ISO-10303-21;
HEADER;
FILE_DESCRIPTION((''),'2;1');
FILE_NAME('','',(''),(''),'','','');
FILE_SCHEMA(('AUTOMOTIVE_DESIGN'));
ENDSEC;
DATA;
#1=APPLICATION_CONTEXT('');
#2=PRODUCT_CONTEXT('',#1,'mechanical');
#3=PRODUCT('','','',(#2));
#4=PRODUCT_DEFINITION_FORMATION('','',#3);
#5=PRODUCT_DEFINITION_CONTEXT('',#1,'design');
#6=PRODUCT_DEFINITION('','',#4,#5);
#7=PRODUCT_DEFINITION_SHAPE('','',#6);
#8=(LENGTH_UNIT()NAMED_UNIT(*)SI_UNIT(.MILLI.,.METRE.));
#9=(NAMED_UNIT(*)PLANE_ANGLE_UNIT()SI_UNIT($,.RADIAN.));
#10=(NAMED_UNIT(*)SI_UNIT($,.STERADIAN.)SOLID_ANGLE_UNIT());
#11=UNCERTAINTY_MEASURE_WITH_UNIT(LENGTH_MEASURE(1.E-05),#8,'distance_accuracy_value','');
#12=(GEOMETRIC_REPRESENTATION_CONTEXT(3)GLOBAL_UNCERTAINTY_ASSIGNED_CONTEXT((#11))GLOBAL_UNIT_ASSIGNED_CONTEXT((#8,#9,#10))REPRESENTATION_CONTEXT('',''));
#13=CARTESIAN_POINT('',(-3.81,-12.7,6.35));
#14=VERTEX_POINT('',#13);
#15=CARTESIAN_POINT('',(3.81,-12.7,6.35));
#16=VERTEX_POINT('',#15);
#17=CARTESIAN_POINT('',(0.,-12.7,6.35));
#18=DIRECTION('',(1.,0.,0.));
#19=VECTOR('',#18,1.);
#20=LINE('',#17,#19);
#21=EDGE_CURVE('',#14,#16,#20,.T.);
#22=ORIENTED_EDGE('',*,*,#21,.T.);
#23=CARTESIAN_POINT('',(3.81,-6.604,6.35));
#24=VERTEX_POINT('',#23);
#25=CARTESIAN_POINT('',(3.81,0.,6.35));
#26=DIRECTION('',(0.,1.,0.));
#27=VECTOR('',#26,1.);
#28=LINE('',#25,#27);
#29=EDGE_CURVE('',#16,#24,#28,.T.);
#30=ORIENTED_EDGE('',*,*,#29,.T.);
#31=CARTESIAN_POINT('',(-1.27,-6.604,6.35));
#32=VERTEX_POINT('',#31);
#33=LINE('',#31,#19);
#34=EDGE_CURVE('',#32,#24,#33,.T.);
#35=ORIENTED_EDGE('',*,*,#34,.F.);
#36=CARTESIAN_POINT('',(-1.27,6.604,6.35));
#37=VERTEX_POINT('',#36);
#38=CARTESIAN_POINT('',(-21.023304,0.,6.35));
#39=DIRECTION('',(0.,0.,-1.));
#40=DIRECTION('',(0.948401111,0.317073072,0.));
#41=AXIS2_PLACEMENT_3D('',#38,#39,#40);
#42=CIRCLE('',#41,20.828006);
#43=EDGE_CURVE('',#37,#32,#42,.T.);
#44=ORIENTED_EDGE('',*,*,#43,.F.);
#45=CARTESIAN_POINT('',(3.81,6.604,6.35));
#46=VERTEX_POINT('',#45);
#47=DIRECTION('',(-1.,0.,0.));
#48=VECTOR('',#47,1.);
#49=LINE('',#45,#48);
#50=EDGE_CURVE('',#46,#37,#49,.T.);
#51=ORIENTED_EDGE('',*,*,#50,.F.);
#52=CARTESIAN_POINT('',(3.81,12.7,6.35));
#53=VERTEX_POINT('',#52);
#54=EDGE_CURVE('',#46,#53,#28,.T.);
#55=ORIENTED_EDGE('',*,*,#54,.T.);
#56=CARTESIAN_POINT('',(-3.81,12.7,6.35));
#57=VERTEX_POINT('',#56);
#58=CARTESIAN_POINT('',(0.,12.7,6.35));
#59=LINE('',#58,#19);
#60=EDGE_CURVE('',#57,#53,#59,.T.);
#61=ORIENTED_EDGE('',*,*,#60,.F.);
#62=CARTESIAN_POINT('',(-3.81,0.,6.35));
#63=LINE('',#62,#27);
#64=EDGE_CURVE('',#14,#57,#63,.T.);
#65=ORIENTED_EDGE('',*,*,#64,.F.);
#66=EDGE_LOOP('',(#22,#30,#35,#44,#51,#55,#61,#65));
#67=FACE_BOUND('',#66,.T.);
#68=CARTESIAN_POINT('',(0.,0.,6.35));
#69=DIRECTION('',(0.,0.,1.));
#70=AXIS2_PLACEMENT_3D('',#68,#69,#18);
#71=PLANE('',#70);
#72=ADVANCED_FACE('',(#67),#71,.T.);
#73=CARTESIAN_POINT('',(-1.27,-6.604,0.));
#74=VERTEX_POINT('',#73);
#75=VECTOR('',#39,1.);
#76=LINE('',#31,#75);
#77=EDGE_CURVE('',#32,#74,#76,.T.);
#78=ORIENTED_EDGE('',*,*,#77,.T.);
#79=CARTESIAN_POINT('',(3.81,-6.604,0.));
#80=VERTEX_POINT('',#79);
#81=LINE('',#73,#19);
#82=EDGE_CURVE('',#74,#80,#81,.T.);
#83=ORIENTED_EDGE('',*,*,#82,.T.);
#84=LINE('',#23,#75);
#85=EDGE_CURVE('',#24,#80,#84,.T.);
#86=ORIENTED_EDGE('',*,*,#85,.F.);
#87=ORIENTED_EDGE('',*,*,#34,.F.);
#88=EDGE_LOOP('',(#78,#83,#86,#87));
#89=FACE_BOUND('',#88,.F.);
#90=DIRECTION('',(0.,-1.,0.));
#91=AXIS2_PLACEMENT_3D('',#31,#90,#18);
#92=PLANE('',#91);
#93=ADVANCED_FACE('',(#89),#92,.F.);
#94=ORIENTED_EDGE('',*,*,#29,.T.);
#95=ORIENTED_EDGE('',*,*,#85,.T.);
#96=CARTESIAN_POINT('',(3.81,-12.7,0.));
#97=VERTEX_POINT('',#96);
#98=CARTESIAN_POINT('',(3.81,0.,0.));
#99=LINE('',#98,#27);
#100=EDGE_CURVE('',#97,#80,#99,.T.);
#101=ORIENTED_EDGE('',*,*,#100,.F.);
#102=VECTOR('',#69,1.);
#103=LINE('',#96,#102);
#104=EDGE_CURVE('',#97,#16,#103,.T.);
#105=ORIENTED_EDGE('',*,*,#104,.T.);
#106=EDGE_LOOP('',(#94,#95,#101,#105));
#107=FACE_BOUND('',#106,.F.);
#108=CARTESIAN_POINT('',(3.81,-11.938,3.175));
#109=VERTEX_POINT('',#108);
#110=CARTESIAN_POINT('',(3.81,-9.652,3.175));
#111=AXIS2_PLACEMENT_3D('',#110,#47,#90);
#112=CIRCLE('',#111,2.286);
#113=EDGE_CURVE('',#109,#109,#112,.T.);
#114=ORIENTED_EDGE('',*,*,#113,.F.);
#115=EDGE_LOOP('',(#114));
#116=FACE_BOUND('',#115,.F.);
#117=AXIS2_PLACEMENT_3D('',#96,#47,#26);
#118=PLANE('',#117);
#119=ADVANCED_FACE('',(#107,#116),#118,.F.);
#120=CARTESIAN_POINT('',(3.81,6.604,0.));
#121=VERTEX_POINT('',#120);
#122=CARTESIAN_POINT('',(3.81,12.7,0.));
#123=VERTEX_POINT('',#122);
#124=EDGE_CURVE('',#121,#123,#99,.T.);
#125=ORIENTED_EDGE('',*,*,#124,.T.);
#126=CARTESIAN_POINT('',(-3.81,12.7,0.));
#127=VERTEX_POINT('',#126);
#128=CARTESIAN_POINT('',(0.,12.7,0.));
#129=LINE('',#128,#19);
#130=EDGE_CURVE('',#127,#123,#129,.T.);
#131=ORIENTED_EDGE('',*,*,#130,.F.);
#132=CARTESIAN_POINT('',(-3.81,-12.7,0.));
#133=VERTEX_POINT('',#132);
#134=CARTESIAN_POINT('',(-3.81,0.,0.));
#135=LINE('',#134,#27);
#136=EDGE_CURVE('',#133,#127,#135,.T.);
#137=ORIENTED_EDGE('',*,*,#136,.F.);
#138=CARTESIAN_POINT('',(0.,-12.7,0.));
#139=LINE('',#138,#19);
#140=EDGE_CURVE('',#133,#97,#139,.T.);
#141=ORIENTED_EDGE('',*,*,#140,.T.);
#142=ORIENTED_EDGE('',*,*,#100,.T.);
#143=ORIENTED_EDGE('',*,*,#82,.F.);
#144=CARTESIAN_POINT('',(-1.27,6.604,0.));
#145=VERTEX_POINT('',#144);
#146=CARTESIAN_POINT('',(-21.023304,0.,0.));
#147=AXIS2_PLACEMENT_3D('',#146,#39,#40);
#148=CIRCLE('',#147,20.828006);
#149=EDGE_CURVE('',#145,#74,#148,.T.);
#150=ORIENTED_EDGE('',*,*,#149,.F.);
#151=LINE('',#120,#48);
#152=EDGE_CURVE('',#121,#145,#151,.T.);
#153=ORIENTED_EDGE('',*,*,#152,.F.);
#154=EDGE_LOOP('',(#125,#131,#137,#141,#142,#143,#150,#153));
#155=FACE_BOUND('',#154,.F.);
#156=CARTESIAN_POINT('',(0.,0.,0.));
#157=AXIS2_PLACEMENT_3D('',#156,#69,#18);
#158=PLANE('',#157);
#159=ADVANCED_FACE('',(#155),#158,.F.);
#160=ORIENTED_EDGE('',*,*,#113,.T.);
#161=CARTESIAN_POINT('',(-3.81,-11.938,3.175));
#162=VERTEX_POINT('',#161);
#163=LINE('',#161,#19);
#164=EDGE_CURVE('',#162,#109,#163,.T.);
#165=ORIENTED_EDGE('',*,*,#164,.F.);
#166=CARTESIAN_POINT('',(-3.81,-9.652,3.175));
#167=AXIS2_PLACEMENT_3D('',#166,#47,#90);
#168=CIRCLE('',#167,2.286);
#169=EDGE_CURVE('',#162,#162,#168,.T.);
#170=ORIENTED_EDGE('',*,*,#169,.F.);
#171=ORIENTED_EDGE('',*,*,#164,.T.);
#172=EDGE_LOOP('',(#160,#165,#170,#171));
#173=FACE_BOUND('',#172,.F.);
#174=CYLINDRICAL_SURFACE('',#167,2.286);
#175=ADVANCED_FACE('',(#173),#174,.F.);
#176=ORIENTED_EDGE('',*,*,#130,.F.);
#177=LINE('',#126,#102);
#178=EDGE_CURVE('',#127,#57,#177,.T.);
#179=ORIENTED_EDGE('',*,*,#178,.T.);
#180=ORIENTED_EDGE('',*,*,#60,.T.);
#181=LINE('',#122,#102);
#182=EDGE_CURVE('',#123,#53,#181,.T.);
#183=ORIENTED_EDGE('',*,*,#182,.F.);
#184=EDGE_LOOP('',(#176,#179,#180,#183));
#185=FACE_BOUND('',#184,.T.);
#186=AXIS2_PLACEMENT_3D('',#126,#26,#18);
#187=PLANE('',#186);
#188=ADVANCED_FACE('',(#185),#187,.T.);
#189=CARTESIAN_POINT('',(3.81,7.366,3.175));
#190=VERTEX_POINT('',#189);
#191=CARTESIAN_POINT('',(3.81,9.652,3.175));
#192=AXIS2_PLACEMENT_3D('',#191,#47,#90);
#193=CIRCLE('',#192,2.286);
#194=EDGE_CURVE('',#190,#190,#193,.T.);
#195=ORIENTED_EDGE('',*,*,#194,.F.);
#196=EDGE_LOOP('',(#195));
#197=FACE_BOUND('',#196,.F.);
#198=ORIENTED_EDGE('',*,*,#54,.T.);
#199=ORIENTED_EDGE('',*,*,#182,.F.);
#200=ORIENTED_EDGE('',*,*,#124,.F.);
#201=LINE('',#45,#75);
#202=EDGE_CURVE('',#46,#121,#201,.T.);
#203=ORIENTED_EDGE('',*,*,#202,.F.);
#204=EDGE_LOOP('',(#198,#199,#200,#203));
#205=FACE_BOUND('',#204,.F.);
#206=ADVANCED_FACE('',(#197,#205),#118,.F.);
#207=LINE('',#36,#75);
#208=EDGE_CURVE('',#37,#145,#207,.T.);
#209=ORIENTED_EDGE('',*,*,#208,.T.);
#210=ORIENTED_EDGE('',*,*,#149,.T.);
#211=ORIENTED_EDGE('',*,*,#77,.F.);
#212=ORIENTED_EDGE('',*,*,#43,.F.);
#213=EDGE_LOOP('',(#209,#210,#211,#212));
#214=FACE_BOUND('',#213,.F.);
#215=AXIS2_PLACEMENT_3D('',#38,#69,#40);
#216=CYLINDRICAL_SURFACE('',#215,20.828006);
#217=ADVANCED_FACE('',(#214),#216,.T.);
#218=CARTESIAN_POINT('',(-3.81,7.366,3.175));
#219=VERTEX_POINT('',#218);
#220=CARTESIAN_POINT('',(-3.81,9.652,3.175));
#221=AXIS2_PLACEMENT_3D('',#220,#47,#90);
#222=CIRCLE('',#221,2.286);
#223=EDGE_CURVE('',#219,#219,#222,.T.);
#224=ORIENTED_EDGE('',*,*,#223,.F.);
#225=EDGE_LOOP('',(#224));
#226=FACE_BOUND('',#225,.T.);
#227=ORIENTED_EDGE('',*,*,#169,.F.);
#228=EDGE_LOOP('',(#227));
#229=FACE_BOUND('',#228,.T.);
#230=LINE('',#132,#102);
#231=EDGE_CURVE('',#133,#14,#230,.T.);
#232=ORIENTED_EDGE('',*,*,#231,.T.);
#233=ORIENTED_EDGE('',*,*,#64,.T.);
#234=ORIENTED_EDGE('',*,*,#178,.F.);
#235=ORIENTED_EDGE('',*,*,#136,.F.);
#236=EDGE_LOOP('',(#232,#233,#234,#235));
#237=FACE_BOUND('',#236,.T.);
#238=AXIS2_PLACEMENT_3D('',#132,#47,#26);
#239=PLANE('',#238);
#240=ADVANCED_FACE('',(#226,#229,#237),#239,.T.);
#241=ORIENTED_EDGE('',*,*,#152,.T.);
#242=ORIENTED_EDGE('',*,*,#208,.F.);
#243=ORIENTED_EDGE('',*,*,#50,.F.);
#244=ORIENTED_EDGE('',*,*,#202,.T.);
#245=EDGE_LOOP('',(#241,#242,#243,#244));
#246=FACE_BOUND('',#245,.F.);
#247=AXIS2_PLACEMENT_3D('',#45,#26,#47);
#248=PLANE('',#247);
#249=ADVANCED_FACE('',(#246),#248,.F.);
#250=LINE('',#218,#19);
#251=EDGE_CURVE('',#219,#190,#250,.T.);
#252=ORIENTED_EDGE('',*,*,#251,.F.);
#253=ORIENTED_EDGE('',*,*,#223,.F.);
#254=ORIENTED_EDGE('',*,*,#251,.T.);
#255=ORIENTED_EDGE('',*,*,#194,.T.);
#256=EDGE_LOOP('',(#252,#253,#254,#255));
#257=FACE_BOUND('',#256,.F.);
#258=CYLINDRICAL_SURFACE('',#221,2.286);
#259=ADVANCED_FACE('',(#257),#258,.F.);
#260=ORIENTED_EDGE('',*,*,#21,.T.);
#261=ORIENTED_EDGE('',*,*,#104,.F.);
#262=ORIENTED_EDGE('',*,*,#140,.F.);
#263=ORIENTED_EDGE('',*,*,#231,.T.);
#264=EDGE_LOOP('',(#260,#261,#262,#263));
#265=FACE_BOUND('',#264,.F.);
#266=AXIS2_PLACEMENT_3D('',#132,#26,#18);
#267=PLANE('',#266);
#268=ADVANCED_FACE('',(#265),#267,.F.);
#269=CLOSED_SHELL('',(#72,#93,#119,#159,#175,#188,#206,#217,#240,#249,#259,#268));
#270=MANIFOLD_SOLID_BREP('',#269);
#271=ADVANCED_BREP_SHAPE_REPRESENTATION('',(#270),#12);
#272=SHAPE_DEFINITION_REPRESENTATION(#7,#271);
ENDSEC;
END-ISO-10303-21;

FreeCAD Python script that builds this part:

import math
import FreeCAD as App
import Part
import Sketcher

V = App.Vector
Q = App.Units.Quantity

doc = App.newDocument("Part")
body = doc.addObject("PartDesign::Body", "Body")

sketch1 = body.newObject("Sketcher::SketchObject", "Sketch")
sketch1.AttachmentSupport = (doc.getObject("XY_Plane"), [""])
sketch1.MapMode = "FlatFace"
sketch1.addGeometry([
    Part.LineSegment(V(-3.81, 12.7, 0), V(-3.81, -12.7, 0)),
    Part.LineSegment(V(-3.81, -12.7, 0), V(3.81, -12.7, 0)),
    Part.LineSegment(V(3.81, -12.7, 0), V(3.81, 12.7, 0)),
    Part.LineSegment(V(3.81, 12.7, 0), V(-3.81, 12.7, 0)),
], False)
sketch1.addConstraint([
    Sketcher.Constraint("Coincident", 0, 2, 1, 1),
    Sketcher.Constraint("Coincident", 1, 2, 2, 1),
    Sketcher.Constraint("Coincident", 2, 2, 3, 1),
    Sketcher.Constraint("Coincident", 3, 2, 0, 1),
    Sketcher.Constraint("Vertical", 0),
    Sketcher.Constraint("Horizontal", 1),
    Sketcher.Constraint("Vertical", 2),
    Sketcher.Constraint("Horizontal", 3),
    Sketcher.Constraint("Symmetric", 0, 2, 2, 2, -1, 1),
    Sketcher.Constraint("DistanceY", 0, 2, 0, 1, Q("1 in")),
    Sketcher.Constraint("DistanceX", 1, 1, 1, 2, Q("0.3 in")),
])
pad1 = body.newObject("PartDesign::Pad", "Pad")
pad1.Profile = sketch1
pad1.Length = Q("0.25 in")

sketch2 = body.newObject("Sketcher::SketchObject", "Sketch001")
sketch2.AttachmentSupport = (doc.getObject("XY_Plane"), [""])
sketch2.MapMode = "FlatFace"
sketch2.AttachmentOffset = App.Placement(V(0, 0, 0.25 * 25.4), App.Rotation())
sketch2.addGeometry([
    Part.ArcOfCircle(Part.Circle(V(-21.023304, 0, 0), V(0, 0, 1), 20.828006), math.radians(-18.486009), math.radians(18.486009)),
    Part.LineSegment(V(-1.27, -6.604, 0), V(3.81, -6.604, 0)),
    Part.LineSegment(V(3.81, -6.604, 0), V(3.81, 6.604, 0)),
    Part.LineSegment(V(3.81, 6.604, 0), V(-1.27, 6.604, 0)),
], False)
sketch2.addConstraint([
    Sketcher.Constraint("Coincident", 0, 1, 1, 1),
    Sketcher.Constraint("Coincident", 1, 2, 2, 1),
    Sketcher.Constraint("Coincident", 2, 2, 3, 1),
    Sketcher.Constraint("Coincident", 3, 2, 0, 2),
    Sketcher.Constraint("Horizontal", 1),
    Sketcher.Constraint("Vertical", 2),
    Sketcher.Constraint("Horizontal", 3),
    Sketcher.Constraint("Symmetric", 0, 1, 3, 2, -1),
    Sketcher.Constraint("DistanceX", 1, 1, 1, 2, Q("0.2 in")),
    Sketcher.Constraint("DistanceY", 2, 1, 2, 2, Q("0.52 in")),
    Sketcher.Constraint("DistanceX", 0, 1, -1, 1, Q("0.05 in")),
    Sketcher.Constraint("Radius", 0, 20.828006),
])
pocket1 = body.newObject("PartDesign::Pocket", "Pocket")
pocket1.Profile = sketch2
pocket1.Type = "ThroughAll"

sketch3 = body.newObject("Sketcher::SketchObject", "Sketch002")
sketch3.AttachmentSupport = (doc.getObject("YZ_Plane"), [""])
sketch3.MapMode = "FlatFace"
sketch3.AttachmentOffset = App.Placement(V(0, 0, -0.15 * 25.4), App.Rotation())
sketch3.addGeometry([
    Part.Circle(V(9.652, 3.175, 0), V(0, 0, 1), 2.286),
    Part.Circle(V(-9.652, 3.175, 0), V(0, 0, 1), 2.286),
], False)
sketch3.addConstraint([
    Sketcher.Constraint("Equal", 0, 1),
    Sketcher.Constraint("Symmetric", 0, 3, 1, 3, -2),
    Sketcher.Constraint("Diameter", 0, Q("0.18 in")),
    Sketcher.Constraint("DistanceX", -1, 1, 0, 3, Q("0.38 in")),
    Sketcher.Constraint("DistanceY", -1, 1, 0, 3, Q("0.125 in")),
])
pocket2 = body.newObject("PartDesign::Pocket", "Pocket001")
pocket2.Profile = sketch3
pocket2.Type = "ThroughAll"
pocket2.Reversed = True

doc.recompute()
